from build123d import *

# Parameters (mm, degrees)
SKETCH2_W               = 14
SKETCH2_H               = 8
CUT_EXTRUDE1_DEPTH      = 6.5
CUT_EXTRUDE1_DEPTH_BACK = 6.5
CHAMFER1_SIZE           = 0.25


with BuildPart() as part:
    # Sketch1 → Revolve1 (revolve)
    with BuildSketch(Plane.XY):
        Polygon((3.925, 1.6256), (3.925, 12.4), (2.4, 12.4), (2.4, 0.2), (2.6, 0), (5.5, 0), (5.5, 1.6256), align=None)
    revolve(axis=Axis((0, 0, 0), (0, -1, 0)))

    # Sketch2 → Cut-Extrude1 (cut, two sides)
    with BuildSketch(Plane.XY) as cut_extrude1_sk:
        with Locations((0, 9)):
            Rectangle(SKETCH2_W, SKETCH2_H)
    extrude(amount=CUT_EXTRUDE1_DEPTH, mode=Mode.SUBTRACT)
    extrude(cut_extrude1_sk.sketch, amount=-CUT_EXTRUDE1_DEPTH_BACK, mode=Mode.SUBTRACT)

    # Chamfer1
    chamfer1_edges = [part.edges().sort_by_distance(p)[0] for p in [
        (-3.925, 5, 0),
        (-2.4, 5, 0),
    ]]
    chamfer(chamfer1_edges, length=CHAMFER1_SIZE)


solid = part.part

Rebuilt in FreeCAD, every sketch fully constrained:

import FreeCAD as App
import Part
import Sketcher

V = App.Vector
Q = App.Units.Quantity


def edges_at(feature, points):
    """Names of the edges that pass closest to the given points."""
    edges = feature.Shape.Edges
    near = lambda p: min(range(len(edges)), key=lambda i: edges[i].distToShape(Part.Vertex(*p))[0])
    return sorted({f"Edge{near(p) + 1}" for p in points})


def add_polygon(sketch, points):
    """Adds a closed chain of lines whose ends are joined by coincident constraints."""
    first, n = sketch.GeometryCount, len(points)
    for a, b in zip(points, points[1:] + points[:1]):
        sketch.addGeometry(Part.LineSegment(App.Vector(*a, 0), App.Vector(*b, 0)), False)
    for i in range(n):
        sketch.addConstraint(Sketcher.Constraint("Coincident", first + i, 2, first + (i + 1) % n, 1))

doc = App.newDocument("Part")
body = doc.addObject("PartDesign::Body", "Body")

sketch1 = body.newObject("Sketcher::SketchObject", "Sketch")
sketch1.AttachmentSupport = (doc.getObject("XY_Plane"), [""])
sketch1.MapMode = "FlatFace"
add_polygon(sketch1, [(3.92, 1.63), (3.92, 12.4), (2.4, 12.4), (2.4, 0.2), (2.6, 0), (5.5, 0), (5.5, 1.63)])
sketch1.addConstraint(Sketcher.Constraint("Vertical", 0))
sketch1.addConstraint(Sketcher.Constraint("Horizontal", 1))
sketch1.addConstraint(Sketcher.Constraint("Vertical", 2))
sketch1.addConstraint(Sketcher.Constraint("Horizontal", 4))
sketch1.addConstraint(Sketcher.Constraint("Vertical", 5))
sketch1.addConstraint(Sketcher.Constraint("Horizontal", 6))
sketch1.addConstraint(Sketcher.Constraint("PointOnObject", 3, 2, -1))
sketch1.addConstraint(Sketcher.Constraint("Angle", 3, Q("-45 deg")))
sketch1.addConstraint(Sketcher.Constraint("DistanceX", 4, 1, 4, 2, Q("2.9 mm")))
sketch1.addConstraint(Sketcher.Constraint("DistanceY", 2, 2, 2, 1, Q("12.2 mm")))
sketch1.addConstraint(Sketcher.Constraint("DistanceY", -1, 1, 0, 2, Q("12.4 mm")))
sketch1.addConstraint(Sketcher.Constraint("DistanceX", -1, 1, 1, 2, Q("2.4 mm")))
sketch1.addConstraint(Sketcher.Constraint("DistanceX", 1, 2, 1, 1, Q("1.525 mm")))
sketch1.addConstraint(Sketcher.Constraint("DistanceY", 0, 1, 0, 2, Q("10.7744 mm")))
revolution = body.newObject("PartDesign::Revolution", "Revolution")
revolution.Profile = sketch1
revolution.ReferenceAxis = (sketch1, ["V_Axis"])
revolution.Angle = 360

sketch2 = body.newObject("Sketcher::SketchObject", "Sketch001")
sketch2.AttachmentSupport = (doc.getObject("XY_Plane"), [""])
sketch2.MapMode = "FlatFace"
add_polygon(sketch2, [(-7, 13), (-7, 5), (7, 5), (7, 13)])
sketch2.addConstraint(Sketcher.Constraint("Vertical", 0))
sketch2.addConstraint(Sketcher.Constraint("Horizontal", 1))
sketch2.addConstraint(Sketcher.Constraint("Vertical", 2))
sketch2.addConstraint(Sketcher.Constraint("Horizontal", 3))
sketch2.addConstraint(Sketcher.Constraint("DistanceX", 1, 1, 1, 2, Q("14 mm")))
sketch2.addConstraint(Sketcher.Constraint("DistanceY", 0, 2, 0, 1, Q("8 mm")))
sketch2.addConstraint(Sketcher.Constraint("DistanceX", 0, 2, -1, 1, Q("7 mm")))
sketch2.addConstraint(Sketcher.Constraint("DistanceY", -1, 1, 0, 2, Q("5 mm")))
pocket1 = body.newObject("PartDesign::Pocket", "Pocket")
pocket1.Profile = sketch2
pocket1.Type = "ThroughAll"
pocket1.Midplane = True
doc.recompute()

chamfer = body.newObject("PartDesign::Chamfer", "Chamfer")
chamfer.Base = (pocket1, edges_at(pocket1, [(-3.925, 5, 0), (-2.4, 5, 0)]))
chamfer.Size = 0.25

doc.recompute()
